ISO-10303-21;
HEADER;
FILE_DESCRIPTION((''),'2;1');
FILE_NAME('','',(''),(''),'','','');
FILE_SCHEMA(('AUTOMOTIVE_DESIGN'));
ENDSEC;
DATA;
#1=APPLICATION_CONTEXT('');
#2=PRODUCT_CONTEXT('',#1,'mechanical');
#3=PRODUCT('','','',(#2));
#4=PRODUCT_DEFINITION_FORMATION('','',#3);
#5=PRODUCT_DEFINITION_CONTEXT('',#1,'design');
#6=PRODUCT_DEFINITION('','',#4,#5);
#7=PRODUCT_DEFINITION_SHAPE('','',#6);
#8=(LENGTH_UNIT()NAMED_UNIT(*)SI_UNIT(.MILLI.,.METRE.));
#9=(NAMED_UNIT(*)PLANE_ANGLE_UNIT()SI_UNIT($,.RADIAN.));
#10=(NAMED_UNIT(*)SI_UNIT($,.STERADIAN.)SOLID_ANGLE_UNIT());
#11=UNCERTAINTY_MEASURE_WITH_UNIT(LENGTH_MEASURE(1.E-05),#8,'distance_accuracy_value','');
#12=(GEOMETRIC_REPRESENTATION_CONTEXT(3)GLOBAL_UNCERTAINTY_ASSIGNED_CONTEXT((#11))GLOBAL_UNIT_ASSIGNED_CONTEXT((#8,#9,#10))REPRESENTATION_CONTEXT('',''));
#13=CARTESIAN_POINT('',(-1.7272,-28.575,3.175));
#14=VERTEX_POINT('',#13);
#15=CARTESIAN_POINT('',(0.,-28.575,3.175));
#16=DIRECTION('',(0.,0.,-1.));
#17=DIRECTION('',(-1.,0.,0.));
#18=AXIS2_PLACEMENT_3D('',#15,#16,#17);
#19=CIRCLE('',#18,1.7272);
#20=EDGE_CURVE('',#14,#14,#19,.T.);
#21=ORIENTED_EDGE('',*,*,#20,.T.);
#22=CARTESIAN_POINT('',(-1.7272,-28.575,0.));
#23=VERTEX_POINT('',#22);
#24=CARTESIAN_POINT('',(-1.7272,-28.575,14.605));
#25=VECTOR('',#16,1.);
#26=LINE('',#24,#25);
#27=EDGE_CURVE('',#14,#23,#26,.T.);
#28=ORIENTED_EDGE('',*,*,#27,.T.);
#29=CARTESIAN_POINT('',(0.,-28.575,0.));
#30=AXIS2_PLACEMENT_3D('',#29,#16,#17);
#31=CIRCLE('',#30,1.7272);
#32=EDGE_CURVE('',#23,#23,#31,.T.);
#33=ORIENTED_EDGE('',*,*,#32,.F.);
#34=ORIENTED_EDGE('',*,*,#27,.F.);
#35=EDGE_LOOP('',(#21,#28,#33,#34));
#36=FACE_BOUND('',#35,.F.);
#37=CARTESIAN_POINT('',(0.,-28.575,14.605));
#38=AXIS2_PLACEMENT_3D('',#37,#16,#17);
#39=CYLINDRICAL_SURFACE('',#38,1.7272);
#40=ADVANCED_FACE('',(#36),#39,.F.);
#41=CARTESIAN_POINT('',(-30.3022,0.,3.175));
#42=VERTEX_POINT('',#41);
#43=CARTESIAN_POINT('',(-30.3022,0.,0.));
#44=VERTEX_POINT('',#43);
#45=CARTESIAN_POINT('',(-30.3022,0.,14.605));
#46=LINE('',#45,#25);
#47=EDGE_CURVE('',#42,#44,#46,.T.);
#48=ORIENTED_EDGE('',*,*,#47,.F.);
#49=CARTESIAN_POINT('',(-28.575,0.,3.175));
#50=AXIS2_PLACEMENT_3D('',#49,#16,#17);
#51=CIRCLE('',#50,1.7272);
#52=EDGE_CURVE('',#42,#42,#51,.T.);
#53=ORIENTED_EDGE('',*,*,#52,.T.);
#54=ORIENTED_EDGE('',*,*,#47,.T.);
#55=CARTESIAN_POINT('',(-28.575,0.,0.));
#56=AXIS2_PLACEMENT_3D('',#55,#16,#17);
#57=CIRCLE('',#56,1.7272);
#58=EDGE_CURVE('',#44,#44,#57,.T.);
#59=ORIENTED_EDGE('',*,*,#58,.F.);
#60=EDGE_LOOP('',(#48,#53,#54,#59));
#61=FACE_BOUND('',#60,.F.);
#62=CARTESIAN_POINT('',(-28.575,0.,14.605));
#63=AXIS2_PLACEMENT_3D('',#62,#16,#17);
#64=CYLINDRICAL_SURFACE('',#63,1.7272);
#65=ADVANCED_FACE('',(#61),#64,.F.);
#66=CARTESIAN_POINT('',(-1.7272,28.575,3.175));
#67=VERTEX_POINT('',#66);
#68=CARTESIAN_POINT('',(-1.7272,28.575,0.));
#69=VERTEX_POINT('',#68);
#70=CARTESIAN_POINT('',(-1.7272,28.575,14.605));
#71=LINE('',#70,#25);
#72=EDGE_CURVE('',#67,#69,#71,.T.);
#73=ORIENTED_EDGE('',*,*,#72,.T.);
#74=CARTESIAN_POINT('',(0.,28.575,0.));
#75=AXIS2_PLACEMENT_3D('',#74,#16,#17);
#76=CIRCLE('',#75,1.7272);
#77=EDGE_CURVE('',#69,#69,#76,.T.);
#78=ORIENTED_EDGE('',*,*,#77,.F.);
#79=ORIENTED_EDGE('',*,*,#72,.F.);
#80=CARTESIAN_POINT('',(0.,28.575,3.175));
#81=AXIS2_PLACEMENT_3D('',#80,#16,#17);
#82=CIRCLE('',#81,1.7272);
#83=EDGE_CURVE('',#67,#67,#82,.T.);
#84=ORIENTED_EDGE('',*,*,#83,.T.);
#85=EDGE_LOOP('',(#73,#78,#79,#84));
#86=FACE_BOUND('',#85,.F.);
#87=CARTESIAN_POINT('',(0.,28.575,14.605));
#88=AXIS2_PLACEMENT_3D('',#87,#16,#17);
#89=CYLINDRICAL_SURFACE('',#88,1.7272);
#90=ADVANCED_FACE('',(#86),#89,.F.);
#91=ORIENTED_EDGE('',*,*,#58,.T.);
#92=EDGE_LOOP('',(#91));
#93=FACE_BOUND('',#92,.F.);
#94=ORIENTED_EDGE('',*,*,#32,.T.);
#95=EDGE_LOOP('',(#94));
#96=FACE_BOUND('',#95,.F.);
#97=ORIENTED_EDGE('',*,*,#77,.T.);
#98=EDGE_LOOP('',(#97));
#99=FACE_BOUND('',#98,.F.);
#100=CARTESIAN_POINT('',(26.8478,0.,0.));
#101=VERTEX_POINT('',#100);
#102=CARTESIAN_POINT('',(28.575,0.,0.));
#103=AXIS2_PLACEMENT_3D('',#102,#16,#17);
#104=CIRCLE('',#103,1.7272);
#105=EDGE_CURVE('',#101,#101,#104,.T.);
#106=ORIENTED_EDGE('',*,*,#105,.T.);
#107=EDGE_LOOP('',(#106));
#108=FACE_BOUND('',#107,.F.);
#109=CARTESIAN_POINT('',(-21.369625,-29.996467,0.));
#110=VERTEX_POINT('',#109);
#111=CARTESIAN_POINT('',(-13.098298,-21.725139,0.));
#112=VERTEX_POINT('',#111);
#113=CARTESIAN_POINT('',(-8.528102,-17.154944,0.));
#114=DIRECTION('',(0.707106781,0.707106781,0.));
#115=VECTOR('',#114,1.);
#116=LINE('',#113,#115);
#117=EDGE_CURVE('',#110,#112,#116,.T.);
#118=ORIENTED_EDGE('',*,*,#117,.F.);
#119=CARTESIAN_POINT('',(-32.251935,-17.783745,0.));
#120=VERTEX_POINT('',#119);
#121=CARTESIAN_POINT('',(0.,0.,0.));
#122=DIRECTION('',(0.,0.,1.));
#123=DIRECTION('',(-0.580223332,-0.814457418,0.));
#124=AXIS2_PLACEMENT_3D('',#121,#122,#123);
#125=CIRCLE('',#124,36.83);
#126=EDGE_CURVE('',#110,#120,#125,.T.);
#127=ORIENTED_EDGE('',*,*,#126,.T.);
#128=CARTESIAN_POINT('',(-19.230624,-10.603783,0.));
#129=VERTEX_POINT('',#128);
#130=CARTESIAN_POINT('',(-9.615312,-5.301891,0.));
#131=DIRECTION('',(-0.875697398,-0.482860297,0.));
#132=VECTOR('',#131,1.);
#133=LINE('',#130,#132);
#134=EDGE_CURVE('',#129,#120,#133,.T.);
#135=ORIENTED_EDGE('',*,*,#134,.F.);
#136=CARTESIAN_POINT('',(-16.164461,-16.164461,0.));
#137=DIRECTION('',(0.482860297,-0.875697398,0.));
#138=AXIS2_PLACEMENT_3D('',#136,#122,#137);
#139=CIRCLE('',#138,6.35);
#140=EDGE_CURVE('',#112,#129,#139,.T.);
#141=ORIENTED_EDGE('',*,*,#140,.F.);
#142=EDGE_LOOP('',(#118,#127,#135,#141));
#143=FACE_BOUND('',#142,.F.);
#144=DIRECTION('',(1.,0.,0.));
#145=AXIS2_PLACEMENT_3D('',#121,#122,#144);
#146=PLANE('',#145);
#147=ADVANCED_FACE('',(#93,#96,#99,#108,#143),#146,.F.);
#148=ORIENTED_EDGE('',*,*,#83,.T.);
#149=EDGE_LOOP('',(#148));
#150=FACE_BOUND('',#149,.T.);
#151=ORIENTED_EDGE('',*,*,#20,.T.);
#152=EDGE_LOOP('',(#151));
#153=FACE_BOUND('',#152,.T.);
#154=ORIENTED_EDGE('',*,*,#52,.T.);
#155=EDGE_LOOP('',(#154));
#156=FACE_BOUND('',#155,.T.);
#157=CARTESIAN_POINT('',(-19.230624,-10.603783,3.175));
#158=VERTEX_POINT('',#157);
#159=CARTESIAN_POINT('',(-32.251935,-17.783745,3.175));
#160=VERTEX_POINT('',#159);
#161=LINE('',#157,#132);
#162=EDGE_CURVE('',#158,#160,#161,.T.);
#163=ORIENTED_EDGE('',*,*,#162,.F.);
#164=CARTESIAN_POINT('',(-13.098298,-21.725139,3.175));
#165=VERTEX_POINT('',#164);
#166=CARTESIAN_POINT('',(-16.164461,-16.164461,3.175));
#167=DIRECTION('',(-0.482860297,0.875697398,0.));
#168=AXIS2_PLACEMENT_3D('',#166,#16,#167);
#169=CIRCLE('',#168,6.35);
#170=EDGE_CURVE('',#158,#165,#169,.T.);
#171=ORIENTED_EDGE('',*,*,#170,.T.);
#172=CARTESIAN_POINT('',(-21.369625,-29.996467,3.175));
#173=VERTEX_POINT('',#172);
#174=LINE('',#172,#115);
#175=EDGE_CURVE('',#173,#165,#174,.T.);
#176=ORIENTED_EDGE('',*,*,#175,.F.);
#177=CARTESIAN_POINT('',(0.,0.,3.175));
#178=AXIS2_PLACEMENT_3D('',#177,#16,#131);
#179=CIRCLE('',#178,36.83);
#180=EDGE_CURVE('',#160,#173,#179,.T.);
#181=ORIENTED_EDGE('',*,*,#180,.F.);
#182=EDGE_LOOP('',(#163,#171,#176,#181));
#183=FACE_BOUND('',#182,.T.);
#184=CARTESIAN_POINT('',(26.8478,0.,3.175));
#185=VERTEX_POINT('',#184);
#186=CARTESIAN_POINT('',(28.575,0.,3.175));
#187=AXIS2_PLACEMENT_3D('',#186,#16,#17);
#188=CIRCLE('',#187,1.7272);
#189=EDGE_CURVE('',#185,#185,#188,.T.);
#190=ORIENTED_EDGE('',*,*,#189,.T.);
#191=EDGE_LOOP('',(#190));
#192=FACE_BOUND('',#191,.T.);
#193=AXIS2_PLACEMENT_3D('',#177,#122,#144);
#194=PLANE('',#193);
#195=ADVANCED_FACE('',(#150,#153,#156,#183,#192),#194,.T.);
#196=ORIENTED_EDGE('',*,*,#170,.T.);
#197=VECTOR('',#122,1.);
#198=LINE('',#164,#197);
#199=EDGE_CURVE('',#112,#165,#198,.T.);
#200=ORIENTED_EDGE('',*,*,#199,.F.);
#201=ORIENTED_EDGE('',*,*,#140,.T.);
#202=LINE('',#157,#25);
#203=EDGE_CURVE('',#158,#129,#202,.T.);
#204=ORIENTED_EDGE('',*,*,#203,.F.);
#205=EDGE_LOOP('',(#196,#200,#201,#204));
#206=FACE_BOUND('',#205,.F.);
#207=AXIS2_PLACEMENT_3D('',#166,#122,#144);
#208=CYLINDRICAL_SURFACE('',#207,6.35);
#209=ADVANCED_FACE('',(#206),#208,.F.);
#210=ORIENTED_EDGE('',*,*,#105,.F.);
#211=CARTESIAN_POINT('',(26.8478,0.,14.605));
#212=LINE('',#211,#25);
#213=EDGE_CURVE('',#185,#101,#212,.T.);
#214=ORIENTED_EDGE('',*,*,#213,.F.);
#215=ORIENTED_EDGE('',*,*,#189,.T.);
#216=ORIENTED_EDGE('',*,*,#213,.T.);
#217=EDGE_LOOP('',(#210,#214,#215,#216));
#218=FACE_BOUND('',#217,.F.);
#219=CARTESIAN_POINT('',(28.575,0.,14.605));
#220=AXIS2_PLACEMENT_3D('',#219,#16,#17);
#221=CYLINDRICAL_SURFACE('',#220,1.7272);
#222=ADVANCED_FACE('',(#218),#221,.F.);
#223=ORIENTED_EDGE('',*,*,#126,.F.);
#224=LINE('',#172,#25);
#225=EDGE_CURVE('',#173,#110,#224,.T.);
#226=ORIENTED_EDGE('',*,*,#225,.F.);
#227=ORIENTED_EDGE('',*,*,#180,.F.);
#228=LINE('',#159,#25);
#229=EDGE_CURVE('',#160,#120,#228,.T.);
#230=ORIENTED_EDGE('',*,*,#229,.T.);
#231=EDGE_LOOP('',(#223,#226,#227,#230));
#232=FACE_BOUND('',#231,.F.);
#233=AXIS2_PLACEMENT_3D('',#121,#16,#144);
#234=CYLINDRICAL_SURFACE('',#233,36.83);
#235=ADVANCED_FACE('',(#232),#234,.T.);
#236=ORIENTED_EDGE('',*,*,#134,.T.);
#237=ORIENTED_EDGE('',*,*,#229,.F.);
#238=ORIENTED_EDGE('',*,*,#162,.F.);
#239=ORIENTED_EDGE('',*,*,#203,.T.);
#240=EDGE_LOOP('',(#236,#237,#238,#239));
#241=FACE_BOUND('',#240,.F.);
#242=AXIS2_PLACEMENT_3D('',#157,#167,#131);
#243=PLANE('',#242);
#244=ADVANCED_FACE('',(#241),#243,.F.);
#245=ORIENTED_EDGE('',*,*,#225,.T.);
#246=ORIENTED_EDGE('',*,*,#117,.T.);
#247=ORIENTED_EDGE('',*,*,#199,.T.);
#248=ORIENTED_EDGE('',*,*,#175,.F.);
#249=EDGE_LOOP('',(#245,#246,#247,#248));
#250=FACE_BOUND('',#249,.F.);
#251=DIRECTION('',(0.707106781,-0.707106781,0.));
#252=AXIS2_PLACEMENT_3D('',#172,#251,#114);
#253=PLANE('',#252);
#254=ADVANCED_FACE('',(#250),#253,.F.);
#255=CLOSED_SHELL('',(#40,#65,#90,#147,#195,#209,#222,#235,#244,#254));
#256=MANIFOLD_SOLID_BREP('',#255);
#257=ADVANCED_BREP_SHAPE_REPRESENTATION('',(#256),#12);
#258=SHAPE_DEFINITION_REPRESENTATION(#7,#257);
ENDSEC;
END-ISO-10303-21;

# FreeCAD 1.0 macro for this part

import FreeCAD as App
import Part
import Sketcher

V = App.Vector
Q = App.Units.Quantity


def add_polygon(sketch, points):
    """Adds a closed chain of lines whose ends are joined by coincident constraints."""
    first, n = sketch.GeometryCount, len(points)
    for a, b in zip(points, points[1:] + points[:1]):
        sketch.addGeometry(Part.LineSegment(App.Vector(*a, 0), App.Vector(*b, 0)), False)
    for i in range(n):
        sketch.addConstraint(Sketcher.Constraint("Coincident", first + i, 2, first + (i + 1) % n, 1))

doc = App.newDocument("Part")
body = doc.addObject("PartDesign::Body", "Body")

sketch1 = body.newObject("Sketcher::SketchObject", "Sketch")
sketch1.AttachmentSupport = (doc.getObject("XY_Plane"), [""])
sketch1.MapMode = "FlatFace"
sketch1.addGeometry(Part.Circle(V(0, 0, 0), V(0, 0, 1), 36.83), False)
sketch1.addConstraint([
    Sketcher.Constraint("Coincident", 0, 3, -1, 1),
    Sketcher.Constraint("Diameter", 0, Q("2.9 in")),
])
pad1 = body.newObject("PartDesign::Pad", "Pad")
pad1.Profile = sketch1
pad1.Length = Q("0.125 in")

sketch2 = body.newObject("Sketcher::SketchObject", "Sketch001")
sketch2.AttachmentSupport = (doc.getObject("XY_Plane"), [""])
sketch2.MapMode = "FlatFace"
sketch2.AttachmentOffset = App.Placement(V(0, 0, 0.125 * 25.4), App.Rotation())
sketch2.addGeometry([
    Part.Circle(V(-28.575, 0, 0), V(0, 0, 1), 1.7272),
    Part.Circle(V(0, 28.575, 0), V(0, 0, 1), 1.7272),
    Part.Circle(V(28.575, 0, 0), V(0, 0, 1), 1.7272),
    Part.Circle(V(0, -28.575, 0), V(0, 0, 1), 1.7272),
], False)
sketch2.addConstraint([
    Sketcher.Constraint("Equal", 0, 1),
    Sketcher.Constraint("Equal", 1, 2),
    Sketcher.Constraint("Equal", 2, 3),
    Sketcher.Constraint("Symmetric", 0, 3, 2, 3, -1, 1),
    Sketcher.Constraint("Symmetric", 1, 3, 3, 3, -1, 1),
    Sketcher.Constraint("PointOnObject", 0, 3, -1),
    Sketcher.Constraint("PointOnObject", 1, 3, -2),
    Sketcher.Constraint("Diameter", 0, Q("0.136 in")),
    Sketcher.Constraint("DistanceX", 0, 3, 2, 3, Q("2.25 in")),
    Sketcher.Constraint("DistanceY", 3, 3, 1, 3, Q("2.25 in")),
])
doc.recompute()
hole = body.newObject("PartDesign::Hole", "Hole")
hole.Profile = sketch2
hole.ThreadType = "None"
hole.Diameter = Q("0.136 in")
hole.DepthType = "Dimension"
hole.Depth = Q("0.45 in")
hole.DrillPoint = "Angled"
hole.DrillPointAngle = 118

sketch3 = body.newObject("Sketcher::SketchObject", "Sketch002")
sketch3.AttachmentSupport = (doc.getObject("XY_Plane"), [""])
sketch3.MapMode = "FlatFace"
sketch3.AttachmentOffset = App.Placement(V(0, 0, 0.125 * 25.4), App.Rotation())
sketch3.addGeometry(Part.Circle(V(-16.164461, -16.164461, 0), V(0, 0, 1), 6.35), False)
sketch3.addConstraint([
    Sketcher.Constraint("Diameter", 0, Q("0.5 in")),
    Sketcher.Constraint("DistanceX", 0, 3, -1, 1, 16.164461),
    Sketcher.Constraint("DistanceY", 0, 3, -1, 1, 16.164461),
])
pocket1 = body.newObject("PartDesign::Pocket", "Pocket")
pocket1.Profile = sketch3
pocket1.Type = "ThroughAll"

sketch4 = body.newObject("Sketcher::SketchObject", "Sketch003")
sketch4.AttachmentSupport = (doc.getObject("XY_Plane"), [""])
sketch4.MapMode = "FlatFace"
sketch4.AttachmentOffset = App.Placement(V(0, 0, 0.125 * 25.4), App.Rotation())
add_polygon(sketch4, [(-10.603783, -19.230624), (-19.230624, -10.603783), (-32.251935, -17.783745), (-39.337293, -25.79679), (-21.369625, -29.996467)])
sketch4.addConstraint([
    Sketcher.Constraint("Perpendicular", 0, 4),
    Sketcher.Constraint("Angle", 0, Q("135 deg")),
    Sketcher.Constraint("Distance", 4, 15.225201),
    Sketcher.Constraint("DistanceX", 3, 2, 0, 2, 2.139001),
    Sketcher.Constraint("DistanceY", 2, 2, -1, 1, 25.79679),
    Sketcher.Constraint("DistanceX", 1, 2, 0, 2, 13.021311),
    Sketcher.Constraint("DistanceX", 2, 2, 0, 2, 20.106669),
    Sketcher.Constraint("DistanceY", 3, 2, 1, 2, 12.212722),
    Sketcher.Constraint("Distance", 2, 10.696317),
    Sketcher.Constraint("DistanceX", 0, 2, -1, 1, 19.230624),
])
pocket2 = body.newObject("PartDesign::Pocket", "Pocket001")
pocket2.Profile = sketch4
pocket2.Type = "ThroughAll"

doc.recompute()
